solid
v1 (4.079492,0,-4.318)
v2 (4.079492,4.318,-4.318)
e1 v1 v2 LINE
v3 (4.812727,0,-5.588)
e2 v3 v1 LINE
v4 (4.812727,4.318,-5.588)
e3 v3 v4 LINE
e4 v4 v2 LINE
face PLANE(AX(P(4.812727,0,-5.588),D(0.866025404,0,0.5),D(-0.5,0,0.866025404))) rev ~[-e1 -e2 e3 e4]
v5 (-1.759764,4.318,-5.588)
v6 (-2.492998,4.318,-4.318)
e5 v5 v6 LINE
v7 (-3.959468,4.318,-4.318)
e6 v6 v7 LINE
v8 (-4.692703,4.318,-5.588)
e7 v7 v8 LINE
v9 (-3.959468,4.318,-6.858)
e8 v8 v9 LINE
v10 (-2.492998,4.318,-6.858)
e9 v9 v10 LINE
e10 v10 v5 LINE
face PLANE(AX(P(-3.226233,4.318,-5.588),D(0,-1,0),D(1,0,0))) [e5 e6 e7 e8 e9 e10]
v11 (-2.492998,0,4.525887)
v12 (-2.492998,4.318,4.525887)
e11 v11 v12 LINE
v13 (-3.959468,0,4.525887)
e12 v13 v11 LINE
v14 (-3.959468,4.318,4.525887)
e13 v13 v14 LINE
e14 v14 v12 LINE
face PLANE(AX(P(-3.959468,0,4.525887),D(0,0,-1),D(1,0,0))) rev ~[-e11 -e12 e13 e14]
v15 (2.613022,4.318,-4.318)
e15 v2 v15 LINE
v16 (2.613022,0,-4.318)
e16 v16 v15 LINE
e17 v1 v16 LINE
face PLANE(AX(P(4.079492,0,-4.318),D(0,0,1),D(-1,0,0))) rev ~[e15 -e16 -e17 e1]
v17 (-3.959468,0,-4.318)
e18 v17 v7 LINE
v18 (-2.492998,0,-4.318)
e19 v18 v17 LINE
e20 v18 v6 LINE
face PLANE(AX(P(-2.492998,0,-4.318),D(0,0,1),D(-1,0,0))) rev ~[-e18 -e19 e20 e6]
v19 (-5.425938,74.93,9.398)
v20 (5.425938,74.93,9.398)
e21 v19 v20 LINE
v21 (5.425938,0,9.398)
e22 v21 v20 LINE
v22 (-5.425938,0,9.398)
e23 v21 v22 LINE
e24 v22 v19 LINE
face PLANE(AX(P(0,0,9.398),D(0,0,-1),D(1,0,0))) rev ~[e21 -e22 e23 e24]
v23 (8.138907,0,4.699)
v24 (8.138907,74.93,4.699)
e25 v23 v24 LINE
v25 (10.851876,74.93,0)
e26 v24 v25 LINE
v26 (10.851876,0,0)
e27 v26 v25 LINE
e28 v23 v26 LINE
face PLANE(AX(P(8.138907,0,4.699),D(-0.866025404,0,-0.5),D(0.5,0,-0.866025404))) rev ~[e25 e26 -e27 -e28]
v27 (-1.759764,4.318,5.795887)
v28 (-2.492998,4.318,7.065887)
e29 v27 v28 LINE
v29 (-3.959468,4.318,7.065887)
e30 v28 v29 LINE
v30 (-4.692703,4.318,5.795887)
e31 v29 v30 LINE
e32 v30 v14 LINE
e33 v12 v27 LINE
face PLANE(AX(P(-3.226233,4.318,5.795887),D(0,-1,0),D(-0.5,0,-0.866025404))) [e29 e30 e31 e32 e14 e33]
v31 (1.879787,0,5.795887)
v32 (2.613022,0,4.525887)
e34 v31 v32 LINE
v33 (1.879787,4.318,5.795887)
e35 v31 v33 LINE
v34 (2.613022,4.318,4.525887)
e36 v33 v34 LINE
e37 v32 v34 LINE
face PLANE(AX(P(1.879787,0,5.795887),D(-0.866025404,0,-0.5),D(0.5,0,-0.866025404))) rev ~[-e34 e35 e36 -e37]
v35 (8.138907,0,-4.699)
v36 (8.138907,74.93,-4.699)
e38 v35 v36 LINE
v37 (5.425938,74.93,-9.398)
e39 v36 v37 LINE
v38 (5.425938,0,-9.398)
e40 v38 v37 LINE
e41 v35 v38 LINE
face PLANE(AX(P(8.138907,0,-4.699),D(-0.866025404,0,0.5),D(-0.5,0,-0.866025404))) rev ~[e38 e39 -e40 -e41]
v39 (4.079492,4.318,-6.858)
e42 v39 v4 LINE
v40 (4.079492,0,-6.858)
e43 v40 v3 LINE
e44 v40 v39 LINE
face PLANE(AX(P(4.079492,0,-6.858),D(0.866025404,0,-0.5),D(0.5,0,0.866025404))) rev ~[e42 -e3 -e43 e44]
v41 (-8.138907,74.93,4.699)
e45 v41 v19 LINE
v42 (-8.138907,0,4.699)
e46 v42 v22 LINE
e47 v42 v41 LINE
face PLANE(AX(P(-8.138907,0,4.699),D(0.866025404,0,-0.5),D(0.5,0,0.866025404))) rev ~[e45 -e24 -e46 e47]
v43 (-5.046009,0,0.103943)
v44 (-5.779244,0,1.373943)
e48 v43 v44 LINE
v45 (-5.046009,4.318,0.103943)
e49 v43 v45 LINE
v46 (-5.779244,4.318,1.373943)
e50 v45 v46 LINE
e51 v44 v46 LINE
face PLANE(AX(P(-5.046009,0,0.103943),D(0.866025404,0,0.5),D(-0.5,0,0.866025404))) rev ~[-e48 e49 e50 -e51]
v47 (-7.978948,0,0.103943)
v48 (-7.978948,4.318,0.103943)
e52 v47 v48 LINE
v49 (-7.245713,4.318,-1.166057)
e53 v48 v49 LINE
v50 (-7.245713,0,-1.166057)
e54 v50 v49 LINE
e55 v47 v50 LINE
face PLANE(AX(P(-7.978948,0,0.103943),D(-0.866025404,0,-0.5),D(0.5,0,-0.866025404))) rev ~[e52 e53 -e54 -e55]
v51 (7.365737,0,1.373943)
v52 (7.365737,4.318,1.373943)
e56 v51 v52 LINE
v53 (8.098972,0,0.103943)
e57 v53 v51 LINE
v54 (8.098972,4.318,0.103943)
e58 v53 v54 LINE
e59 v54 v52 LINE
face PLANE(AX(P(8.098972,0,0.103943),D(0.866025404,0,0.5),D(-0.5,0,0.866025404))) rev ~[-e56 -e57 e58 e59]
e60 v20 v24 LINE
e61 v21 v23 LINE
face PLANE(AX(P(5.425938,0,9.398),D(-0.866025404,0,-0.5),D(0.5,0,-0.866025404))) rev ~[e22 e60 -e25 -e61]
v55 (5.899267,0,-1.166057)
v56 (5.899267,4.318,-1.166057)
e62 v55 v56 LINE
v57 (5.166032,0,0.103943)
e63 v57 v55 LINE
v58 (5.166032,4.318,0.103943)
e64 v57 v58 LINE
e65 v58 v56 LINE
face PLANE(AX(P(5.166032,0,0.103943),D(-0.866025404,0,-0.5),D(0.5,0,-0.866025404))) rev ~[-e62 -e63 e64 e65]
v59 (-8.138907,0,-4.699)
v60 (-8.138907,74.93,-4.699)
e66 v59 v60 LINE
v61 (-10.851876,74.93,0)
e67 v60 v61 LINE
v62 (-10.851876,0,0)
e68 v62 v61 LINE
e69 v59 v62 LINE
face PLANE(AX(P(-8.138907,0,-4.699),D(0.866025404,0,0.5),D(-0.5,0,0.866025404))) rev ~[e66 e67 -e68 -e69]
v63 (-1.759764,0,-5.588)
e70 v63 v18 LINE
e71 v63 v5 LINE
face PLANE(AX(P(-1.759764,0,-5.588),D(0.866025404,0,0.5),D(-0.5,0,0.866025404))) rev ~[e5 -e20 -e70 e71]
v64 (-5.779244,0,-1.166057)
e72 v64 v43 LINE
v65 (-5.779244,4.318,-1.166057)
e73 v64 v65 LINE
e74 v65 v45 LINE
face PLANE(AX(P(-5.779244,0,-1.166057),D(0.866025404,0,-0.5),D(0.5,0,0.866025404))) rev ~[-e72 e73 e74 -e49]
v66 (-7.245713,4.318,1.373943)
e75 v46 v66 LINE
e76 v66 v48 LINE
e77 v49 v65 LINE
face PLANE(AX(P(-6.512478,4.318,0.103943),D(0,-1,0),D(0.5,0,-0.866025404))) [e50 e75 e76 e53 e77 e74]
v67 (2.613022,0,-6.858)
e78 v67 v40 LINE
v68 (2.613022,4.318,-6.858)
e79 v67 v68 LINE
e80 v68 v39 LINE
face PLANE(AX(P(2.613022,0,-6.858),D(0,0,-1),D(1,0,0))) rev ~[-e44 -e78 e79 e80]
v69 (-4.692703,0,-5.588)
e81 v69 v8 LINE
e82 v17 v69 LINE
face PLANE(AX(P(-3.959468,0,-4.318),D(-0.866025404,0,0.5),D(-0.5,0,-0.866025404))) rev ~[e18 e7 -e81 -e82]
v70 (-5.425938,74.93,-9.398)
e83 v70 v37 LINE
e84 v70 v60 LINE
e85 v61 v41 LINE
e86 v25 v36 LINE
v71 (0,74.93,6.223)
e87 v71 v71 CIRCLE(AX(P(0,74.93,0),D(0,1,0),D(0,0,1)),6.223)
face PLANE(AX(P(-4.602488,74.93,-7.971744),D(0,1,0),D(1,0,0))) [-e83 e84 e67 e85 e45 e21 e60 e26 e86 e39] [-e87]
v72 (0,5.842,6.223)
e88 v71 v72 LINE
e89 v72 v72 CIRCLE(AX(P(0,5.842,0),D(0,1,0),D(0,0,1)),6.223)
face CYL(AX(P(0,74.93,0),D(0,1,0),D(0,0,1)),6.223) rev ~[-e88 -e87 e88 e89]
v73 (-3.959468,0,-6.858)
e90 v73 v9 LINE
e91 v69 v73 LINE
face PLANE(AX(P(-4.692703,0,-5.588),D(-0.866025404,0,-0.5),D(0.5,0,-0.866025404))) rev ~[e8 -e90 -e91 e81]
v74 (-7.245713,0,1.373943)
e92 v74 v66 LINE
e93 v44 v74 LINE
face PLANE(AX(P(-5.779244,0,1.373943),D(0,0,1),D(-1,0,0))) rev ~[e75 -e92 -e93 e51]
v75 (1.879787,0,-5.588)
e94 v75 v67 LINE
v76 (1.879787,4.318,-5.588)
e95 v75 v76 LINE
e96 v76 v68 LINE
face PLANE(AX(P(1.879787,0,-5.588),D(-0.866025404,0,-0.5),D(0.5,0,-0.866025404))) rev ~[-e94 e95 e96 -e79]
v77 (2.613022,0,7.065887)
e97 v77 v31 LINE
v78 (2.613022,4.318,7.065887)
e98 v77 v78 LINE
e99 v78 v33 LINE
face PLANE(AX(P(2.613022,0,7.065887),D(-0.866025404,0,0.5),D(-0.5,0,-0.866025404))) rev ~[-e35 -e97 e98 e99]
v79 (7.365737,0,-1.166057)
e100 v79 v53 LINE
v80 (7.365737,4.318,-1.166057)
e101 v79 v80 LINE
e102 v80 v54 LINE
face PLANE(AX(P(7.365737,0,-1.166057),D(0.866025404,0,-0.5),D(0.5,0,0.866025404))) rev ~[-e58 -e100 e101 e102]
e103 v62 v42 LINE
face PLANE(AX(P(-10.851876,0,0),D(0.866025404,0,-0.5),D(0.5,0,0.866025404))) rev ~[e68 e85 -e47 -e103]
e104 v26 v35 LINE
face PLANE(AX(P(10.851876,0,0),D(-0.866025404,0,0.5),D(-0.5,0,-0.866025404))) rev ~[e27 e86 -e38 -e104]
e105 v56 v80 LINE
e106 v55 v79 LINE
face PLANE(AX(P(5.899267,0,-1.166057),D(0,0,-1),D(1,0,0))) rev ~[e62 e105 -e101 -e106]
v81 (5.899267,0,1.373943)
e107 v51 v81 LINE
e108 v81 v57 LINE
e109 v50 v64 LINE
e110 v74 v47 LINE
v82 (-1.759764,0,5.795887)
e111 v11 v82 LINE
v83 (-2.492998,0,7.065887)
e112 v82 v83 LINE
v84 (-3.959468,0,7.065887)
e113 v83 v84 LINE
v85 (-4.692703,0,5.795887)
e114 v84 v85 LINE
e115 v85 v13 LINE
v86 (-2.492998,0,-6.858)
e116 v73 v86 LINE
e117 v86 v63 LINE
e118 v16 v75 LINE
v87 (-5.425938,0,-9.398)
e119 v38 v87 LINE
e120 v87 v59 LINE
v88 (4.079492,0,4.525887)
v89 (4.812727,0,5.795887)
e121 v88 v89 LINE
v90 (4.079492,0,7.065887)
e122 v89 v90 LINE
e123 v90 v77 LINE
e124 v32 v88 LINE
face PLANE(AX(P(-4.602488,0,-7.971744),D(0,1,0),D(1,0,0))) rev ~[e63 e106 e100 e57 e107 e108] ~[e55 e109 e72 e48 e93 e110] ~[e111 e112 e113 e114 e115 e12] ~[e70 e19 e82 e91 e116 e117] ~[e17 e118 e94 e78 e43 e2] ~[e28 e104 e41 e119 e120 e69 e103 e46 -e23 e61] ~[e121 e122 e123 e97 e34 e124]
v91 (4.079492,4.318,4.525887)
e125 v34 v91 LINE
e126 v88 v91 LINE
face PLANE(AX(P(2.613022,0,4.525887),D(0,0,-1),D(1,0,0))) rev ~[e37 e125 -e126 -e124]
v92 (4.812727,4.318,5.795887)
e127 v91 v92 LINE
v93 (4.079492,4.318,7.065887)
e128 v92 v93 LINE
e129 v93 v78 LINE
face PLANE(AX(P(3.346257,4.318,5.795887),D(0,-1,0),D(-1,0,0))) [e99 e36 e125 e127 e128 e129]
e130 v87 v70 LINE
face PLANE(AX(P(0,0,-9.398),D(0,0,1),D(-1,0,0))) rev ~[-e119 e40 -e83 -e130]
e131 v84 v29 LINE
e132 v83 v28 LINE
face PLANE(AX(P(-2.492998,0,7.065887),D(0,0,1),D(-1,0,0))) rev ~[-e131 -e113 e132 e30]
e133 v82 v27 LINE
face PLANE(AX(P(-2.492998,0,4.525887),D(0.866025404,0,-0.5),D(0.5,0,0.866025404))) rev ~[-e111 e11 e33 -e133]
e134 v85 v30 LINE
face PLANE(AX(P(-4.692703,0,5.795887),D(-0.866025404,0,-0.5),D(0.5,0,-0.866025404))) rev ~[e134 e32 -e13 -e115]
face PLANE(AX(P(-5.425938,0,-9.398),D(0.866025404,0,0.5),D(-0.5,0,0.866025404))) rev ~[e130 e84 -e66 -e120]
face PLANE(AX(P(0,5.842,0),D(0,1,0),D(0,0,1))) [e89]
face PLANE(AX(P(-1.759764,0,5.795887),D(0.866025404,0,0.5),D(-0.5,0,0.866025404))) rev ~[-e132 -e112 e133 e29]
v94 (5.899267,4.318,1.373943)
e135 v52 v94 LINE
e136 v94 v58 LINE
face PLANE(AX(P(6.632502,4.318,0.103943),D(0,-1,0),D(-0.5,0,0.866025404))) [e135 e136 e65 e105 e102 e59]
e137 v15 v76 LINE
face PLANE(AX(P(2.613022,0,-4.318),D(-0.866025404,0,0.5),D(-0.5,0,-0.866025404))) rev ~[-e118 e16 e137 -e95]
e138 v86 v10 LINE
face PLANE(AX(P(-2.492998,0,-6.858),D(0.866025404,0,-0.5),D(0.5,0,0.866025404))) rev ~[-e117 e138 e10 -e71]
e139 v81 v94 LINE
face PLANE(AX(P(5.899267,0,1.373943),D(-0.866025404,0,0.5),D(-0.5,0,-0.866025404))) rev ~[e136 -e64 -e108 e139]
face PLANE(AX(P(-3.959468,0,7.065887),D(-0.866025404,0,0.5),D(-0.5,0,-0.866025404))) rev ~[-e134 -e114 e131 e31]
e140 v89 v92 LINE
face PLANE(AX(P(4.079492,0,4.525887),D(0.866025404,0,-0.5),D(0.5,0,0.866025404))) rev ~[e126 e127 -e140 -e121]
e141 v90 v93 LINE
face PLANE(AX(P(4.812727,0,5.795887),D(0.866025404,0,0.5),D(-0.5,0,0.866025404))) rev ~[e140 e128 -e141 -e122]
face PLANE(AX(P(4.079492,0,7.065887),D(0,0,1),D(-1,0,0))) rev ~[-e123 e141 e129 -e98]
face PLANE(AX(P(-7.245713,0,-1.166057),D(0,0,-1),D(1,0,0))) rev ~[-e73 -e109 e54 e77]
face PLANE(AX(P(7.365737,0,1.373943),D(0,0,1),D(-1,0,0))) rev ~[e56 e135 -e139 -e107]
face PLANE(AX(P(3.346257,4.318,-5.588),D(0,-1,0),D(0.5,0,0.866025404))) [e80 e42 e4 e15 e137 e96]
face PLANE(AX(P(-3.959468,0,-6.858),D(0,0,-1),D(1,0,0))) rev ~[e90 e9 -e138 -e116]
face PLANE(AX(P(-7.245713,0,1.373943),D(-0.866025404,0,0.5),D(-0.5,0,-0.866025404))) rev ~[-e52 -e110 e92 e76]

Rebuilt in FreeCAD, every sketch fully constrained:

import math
import FreeCAD as App
import Part
import Sketcher

V = App.Vector
Q = App.Units.Quantity


def add_polygon(sketch, points):
    """Adds a closed chain of lines whose ends are joined by coincident constraints."""
    first, n = sketch.GeometryCount, len(points)
    for a, b in zip(points, points[1:] + points[:1]):
        sketch.addGeometry(Part.LineSegment(App.Vector(*a, 0), App.Vector(*b, 0)), False)
    for i in range(n):
        sketch.addConstraint(Sketcher.Constraint("Coincident", first + i, 2, first + (i + 1) % n, 1))

doc = App.newDocument("Part")
body = doc.addObject("PartDesign::Body", "Body")

sketch1 = body.newObject("Sketcher::SketchObject", "Sketch")
sketch1.AttachmentSupport = (doc.getObject("XZ_Plane"), [""])
sketch1.MapMode = "FlatFace"
sketch1.addGeometry(Part.Circle(V(0, 0, 0), V(0, 0, 1), 9), False)
sketch1.addConstraint([
    Sketcher.Constraint("Coincident", 0, 3, -1, 1),
    Sketcher.Constraint("Diameter", 0, Q("0.74 in")),
])
pad1 = body.newObject("PartDesign::Pad", "Pad")
pad1.Profile = sketch1
pad1.Length = Q("2.95 in")
pad1.Reversed = True

sketch2 = body.newObject("Sketcher::SketchObject", "Sketch001")
sketch2.AttachmentSupport = (doc.getObject("XZ_Plane"), [""])
sketch2.MapMode = "FlatFace"
sketch2.AttachmentOffset = App.Placement(V(0, 0, -2.95 * 25.4), App.Rotation())
sketch2.addGeometry(Part.Circle(V(0, 0, 0), V(0, 0, 1), 6), False)
sketch2.addConstraint([
    Sketcher.Constraint("Coincident", 0, 3, -1, 1),
    Sketcher.Constraint("Diameter", 0, Q("0.49 in")),
])
pocket1 = body.newObject("PartDesign::Pocket", "Pocket")
pocket1.Profile = sketch2
pocket1.Length = Q("2.72 in")
pocket1.Reversed = True

sketch3 = body.newObject("Sketcher::SketchObject", "Sketch002")
sketch3.AttachmentSupport = (doc.getObject("XZ_Plane"), [""])
sketch3.MapMode = "FlatFace"
sketch3.addGeometry([
    Part.ArcOfCircle(Part.Circle(V(0, 0, 0), V(0, 0, 1), 9.4), math.radians(-150), math.radians(-90)),
    Part.LineSegment(V(0, -9.4, 0), V(-5.4, -9.4, 0)),
    Part.LineSegment(V(-5.4, -9.4, 0), V(-8.1, -4.7, 0)),
    Part.ArcOfCircle(Part.Circle(V(0, 0, 0), V(0, 0, 1), 9.4), math.radians(-90), math.radians(-30)),
    Part.LineSegment(V(8.1, -4.7, 0), V(5.4, -9.4, 0)),
    Part.LineSegment(V(5.4, -9.4, 0), V(0, -9.4, 0)),
    Part.LineSegment(V(8.1, 4.7, 0), V(10.9, 0, 0)),
    Part.LineSegment(V(10.9, 0, 0), V(8.1, -4.7, 0)),
    Part.ArcOfCircle(Part.Circle(V(0, 0, 0), V(0, 0, 1), 9.4), math.radians(-30), math.radians(0)),
    Part.ArcOfCircle(Part.Circle(V(0, 0, 0), V(0, 0, 1), 9.4), math.radians(0), math.radians(30)),
    Part.LineSegment(V(5.4, 9.4, 0), V(8.1, 4.7, 0)),
    Part.ArcOfCircle(Part.Circle(V(0, 0, 0), V(0, 0, 1), 9.4), math.radians(30), math.radians(90)),
    Part.LineSegment(V(0, 9.4, 0), V(5.4, 9.4, 0)),
    Part.LineSegment(V(-5.4, 9.4, 0), V(0, 9.4, 0)),
    Part.ArcOfCircle(Part.Circle(V(0, 0, 0), V(0, 0, 1), 9.4), math.radians(90), math.radians(150)),
    Part.LineSegment(V(-8.1, 4.7, 0), V(-5.4, 9.4, 0)),
    Part.ArcOfCircle(Part.Circle(V(0, 0, 0), V(0, 0, 1), 9.4), math.radians(150), math.radians(210)),
    Part.LineSegment(V(-8.1, -4.7, 0), V(-10.9, 0, 0)),
    Part.LineSegment(V(-10.9, 0, 0), V(-8.1, 4.7, 0)),
], False)
sketch3.addConstraint([
    Sketcher.Constraint("Tangent", 0, 2, 1, 1),
    Sketcher.Constraint("Coincident", 1, 2, 2, 1),
    Sketcher.Constraint("Tangent", 2, 2, 0, 1),
    Sketcher.Constraint("Tangent", 3, 2, 4, 1),
    Sketcher.Constraint("Coincident", 4, 2, 5, 1),
    Sketcher.Constraint("Tangent", 5, 2, 3, 1),
    Sketcher.Constraint("Coincident", 6, 2, 7, 1),
    Sketcher.Constraint("Tangent", 7, 2, 8, 1),
    Sketcher.Constraint("Tangent", 8, 2, 9, 1),
    Sketcher.Constraint("Tangent", 9, 2, 6, 1),
    Sketcher.Constraint("Tangent", 10, 2, 11, 1),
    Sketcher.Constraint("Tangent", 11, 2, 12, 1),
    Sketcher.Constraint("Coincident", 12, 2, 10, 1),
    Sketcher.Constraint("Tangent", 13, 2, 14, 1),
    Sketcher.Constraint("Tangent", 14, 2, 15, 1),
    Sketcher.Constraint("Coincident", 15, 2, 13, 1),
    Sketcher.Constraint("Tangent", 16, 2, 17, 1),
    Sketcher.Constraint("Coincident", 17, 2, 18, 1),
    Sketcher.Constraint("Tangent", 18, 2, 16, 1),
    Sketcher.Constraint("Horizontal", 1),
    Sketcher.Constraint("Horizontal", 5),
    Sketcher.Constraint("Horizontal", 12),
    Sketcher.Constraint("Horizontal", 13),
    Sketcher.Constraint("Coincident", 0, 3, -1, 1),
    Sketcher.Constraint("Coincident", 3, 3, -1, 1),
    Sketcher.Constraint("Coincident", 8, 3, -1, 1),
    Sketcher.Constraint("Coincident", 11, 3, -1, 1),
    Sketcher.Constraint("Coincident", 14, 3, -1, 1),
    Sketcher.Constraint("Coincident", 16, 3, -1, 1),
    Sketcher.Constraint("Coincident", 7, 2, 3, 2),
    Sketcher.Constraint("Coincident", 10, 2, 9, 2),
    Sketcher.Constraint("Coincident", 16, 2, 2, 2),
    Sketcher.Constraint("Coincident", 18, 2, 14, 2),
    Sketcher.Constraint("Equal", 0, 3),
    Sketcher.Constraint("Equal", 8, 9),
    Sketcher.Constraint("Symmetric", 6, 2, 17, 2, -1, 1),
    Sketcher.Constraint("PointOnObject", 6, 2, -1),
    Sketcher.Constraint("PointOnObject", 8, 2, -1),
    Sketcher.Constraint("Equal", 4, 6),
    Sketcher.Constraint("Radius", 0, Q("0.37 in")),
])
pad2 = body.newObject("PartDesign::Pad", "Pad001")
pad2.Profile = sketch3
pad2.Length = Q("2.95 in")
pad2.Reversed = True

sketch4 = body.newObject("Sketcher::SketchObject", "Sketch003")
sketch4.AttachmentSupport = (doc.getObject("XZ_Plane"), [""])
sketch4.MapMode = "FlatFace"
add_polygon(sketch4, [(-1.8, -5.6), (-2.5, -4.3), (-4, -4.3), (-4.7, -5.6), (-4, -6.9), (-2.5, -6.9)])
sketch4.addConstraint([
    Sketcher.Constraint("Horizontal", 1),
    Sketcher.Constraint("Horizontal", 4),
    Sketcher.Constraint("Parallel", 0, 3),
    Sketcher.Constraint("Parallel", 2, 5),
    Sketcher.Constraint("Horizontal", 2, 2, 5, 2),
    Sketcher.Constraint("Vertical", 1, 2, 3, 2),
    Sketcher.Constraint("Vertical", 0, 2, 4, 2),
    Sketcher.Constraint("Angle", 0, Q("120 deg")),
    Sketcher.Constraint("DistanceY", 3, 2, 1, 2, Q("0.1 in")),
    Sketcher.Constraint("DistanceY", 0, 2, -1, 1, Q("0.17 in")),
    Sketcher.Constraint("DistanceX", 1, 2, 1, 1, Q("1.46647 mm")),
    Sketcher.Constraint("DistanceX", 0, 2, -1, 1, Q("2.492998 mm")),
])
pocket2 = body.newObject("PartDesign::Pocket", "Pocket001")
pocket2.Profile = sketch4
pocket2.Length = Q("0.17 in")
doc.recompute()

datumline = body.newObject("PartDesign::Line", "DatumLine")
datumline.Placement = App.Placement(V(0.060012, 0, 0.103943), App.Rotation(V(0, 0, 1), V(0, 1, 0)))
polarpattern = body.newObject("PartDesign::PolarPattern", "PolarPattern")
polarpattern.Originals = [pocket2]
polarpattern.Axis = (datumline, [""])
polarpattern.Angle = 360
polarpattern.Occurrences = 6
body.Tip = polarpattern

doc.recompute()
